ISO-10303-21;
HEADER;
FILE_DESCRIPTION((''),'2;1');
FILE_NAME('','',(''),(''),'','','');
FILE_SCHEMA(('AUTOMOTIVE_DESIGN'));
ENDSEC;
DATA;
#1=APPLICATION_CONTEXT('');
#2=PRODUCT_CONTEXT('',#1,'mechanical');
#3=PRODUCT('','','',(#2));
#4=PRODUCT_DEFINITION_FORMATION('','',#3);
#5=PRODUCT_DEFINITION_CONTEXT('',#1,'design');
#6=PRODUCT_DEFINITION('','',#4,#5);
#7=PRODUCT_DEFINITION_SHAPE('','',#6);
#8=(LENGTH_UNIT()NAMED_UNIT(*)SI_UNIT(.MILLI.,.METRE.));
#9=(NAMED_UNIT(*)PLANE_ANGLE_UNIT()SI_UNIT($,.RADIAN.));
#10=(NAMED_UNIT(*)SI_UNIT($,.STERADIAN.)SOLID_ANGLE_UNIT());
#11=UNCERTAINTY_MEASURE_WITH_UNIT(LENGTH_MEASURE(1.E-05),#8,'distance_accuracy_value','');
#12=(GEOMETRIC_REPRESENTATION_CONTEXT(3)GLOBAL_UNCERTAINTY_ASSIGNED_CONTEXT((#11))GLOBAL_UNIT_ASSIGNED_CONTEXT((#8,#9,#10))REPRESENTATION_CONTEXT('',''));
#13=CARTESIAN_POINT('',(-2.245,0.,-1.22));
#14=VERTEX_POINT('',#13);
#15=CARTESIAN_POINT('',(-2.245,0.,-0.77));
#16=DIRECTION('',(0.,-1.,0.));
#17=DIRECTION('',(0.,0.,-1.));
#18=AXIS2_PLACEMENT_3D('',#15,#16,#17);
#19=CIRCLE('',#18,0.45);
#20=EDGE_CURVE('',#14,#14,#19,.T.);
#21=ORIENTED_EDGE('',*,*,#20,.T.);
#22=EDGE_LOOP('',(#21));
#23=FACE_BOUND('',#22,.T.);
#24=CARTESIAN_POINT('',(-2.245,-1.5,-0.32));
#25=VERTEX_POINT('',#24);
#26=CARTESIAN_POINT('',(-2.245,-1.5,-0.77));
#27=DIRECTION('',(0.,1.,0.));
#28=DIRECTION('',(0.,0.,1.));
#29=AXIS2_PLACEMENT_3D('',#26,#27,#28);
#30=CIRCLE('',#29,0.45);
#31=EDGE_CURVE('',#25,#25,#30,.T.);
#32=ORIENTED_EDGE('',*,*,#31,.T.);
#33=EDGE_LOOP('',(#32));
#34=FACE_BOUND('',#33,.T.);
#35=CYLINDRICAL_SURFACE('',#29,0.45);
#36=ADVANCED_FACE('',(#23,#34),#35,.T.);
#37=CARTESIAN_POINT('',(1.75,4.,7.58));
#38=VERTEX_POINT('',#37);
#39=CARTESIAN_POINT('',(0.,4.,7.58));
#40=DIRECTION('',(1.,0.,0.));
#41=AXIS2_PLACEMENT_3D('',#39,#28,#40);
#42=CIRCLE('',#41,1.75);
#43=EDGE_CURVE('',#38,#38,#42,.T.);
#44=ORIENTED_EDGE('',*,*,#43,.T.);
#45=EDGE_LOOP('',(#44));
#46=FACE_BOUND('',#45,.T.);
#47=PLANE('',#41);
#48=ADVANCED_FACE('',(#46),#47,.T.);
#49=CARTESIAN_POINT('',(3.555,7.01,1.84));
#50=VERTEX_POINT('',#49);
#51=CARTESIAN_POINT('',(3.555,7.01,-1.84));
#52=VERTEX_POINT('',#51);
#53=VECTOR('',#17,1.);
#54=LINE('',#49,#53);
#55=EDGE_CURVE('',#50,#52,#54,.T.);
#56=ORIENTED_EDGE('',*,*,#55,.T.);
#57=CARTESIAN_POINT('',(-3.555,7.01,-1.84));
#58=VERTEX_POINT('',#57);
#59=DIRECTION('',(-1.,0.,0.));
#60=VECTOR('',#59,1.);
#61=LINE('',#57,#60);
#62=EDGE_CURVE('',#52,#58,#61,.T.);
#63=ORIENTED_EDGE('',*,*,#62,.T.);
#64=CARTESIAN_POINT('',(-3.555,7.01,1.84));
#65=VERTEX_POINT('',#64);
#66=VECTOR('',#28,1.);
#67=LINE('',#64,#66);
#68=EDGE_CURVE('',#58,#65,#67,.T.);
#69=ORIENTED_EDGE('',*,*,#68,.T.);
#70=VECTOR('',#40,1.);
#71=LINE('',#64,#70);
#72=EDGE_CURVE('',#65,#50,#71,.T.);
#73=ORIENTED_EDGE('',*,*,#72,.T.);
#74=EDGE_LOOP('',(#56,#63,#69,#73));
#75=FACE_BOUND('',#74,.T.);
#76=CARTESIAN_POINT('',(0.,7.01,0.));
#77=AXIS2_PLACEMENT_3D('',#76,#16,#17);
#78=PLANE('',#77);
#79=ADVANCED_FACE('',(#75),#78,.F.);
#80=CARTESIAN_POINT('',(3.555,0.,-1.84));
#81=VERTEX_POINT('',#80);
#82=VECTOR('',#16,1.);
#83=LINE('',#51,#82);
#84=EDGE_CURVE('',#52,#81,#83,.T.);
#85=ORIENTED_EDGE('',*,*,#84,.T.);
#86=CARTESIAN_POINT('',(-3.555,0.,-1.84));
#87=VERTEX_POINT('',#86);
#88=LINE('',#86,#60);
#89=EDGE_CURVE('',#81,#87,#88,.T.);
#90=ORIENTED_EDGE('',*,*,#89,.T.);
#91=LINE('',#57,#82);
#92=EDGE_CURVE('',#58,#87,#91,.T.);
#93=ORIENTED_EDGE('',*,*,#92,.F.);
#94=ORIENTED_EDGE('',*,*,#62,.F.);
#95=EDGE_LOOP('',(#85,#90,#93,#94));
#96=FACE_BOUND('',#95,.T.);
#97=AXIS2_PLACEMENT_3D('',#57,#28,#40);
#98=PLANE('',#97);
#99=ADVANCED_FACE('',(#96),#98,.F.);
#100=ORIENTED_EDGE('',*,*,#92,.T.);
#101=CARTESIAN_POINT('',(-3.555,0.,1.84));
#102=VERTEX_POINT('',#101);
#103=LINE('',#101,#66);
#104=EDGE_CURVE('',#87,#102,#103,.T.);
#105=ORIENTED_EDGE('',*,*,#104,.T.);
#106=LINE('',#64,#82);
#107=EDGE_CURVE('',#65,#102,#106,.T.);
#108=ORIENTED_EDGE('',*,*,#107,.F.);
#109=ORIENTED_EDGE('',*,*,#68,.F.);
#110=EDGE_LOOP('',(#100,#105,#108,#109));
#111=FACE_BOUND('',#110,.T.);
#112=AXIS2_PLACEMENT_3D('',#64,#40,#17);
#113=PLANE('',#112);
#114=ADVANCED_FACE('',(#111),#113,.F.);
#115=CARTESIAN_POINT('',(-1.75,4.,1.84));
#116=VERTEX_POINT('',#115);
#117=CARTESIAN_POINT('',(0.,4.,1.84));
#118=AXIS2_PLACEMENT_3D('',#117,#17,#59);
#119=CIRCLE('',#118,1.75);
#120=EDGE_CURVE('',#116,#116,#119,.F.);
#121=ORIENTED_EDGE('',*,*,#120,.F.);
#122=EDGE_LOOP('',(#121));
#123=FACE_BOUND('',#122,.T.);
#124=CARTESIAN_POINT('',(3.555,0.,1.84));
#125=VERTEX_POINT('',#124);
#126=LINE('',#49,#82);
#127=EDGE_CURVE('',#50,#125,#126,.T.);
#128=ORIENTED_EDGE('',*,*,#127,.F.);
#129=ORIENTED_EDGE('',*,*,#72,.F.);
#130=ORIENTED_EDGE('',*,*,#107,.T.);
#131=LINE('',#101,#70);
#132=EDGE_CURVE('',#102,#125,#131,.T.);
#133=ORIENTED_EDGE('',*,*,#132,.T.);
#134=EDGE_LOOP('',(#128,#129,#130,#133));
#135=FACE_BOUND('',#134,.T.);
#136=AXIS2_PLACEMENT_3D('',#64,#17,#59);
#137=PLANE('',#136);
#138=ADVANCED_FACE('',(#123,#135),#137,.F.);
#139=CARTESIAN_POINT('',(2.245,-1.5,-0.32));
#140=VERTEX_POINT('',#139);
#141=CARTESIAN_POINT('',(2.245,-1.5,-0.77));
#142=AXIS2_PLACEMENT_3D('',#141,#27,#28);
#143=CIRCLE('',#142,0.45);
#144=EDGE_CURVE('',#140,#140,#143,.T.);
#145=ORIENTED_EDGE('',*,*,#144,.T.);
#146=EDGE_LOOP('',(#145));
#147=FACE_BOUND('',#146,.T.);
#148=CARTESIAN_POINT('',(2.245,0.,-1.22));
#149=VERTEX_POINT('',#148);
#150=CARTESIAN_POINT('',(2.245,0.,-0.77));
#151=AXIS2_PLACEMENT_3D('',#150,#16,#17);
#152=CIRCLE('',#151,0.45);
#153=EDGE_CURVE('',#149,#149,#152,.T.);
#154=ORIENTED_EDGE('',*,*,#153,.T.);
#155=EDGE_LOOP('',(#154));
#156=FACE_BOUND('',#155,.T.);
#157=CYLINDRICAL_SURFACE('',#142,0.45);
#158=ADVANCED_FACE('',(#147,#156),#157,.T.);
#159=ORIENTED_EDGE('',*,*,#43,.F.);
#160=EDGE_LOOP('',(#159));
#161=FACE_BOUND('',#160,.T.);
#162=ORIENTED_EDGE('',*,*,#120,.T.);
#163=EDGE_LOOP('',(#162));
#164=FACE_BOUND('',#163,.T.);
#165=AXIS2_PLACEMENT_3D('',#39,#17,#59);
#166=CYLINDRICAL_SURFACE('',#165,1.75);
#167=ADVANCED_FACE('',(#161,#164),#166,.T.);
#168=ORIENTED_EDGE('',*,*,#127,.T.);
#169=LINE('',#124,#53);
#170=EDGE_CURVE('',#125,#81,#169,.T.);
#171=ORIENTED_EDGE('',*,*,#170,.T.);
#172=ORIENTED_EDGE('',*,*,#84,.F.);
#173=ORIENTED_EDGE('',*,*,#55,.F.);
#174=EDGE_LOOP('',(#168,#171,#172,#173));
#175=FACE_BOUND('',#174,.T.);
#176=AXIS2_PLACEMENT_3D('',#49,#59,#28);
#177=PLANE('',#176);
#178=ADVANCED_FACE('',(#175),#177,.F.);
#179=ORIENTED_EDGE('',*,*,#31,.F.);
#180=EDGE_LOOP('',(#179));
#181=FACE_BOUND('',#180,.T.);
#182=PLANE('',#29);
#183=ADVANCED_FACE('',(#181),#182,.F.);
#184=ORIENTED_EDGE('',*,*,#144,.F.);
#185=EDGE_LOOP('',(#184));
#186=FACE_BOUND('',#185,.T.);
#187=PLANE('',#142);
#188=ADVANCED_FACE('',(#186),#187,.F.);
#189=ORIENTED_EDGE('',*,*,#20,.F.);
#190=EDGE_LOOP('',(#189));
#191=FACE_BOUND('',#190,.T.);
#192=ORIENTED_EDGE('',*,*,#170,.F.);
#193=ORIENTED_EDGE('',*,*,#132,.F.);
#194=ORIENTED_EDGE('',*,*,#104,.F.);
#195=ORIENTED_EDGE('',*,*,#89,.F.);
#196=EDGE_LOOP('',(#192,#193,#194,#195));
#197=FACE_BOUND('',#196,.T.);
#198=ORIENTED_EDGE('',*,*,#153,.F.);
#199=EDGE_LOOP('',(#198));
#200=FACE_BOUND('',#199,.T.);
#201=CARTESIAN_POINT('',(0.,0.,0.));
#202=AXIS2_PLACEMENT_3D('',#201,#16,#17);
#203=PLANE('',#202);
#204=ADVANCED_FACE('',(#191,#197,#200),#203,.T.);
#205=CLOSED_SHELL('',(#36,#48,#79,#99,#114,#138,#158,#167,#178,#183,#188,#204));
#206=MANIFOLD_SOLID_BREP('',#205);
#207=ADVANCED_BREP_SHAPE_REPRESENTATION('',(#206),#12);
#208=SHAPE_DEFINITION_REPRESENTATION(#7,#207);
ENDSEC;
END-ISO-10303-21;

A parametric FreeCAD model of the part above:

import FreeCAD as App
import Part
import Sketcher
from FreeCAD import Vector
Q = App.Units.Quantity


def add_polygon(sketch, points):
    """Adds a closed chain of lines whose ends are joined by coincident constraints."""
    first, n = sketch.GeometryCount, len(points)
    for a, b in zip(points, points[1:] + points[:1]):
        sketch.addGeometry(Part.LineSegment(App.Vector(*a, 0), App.Vector(*b, 0)), False)
    for i in range(n):
        sketch.addConstraint(Sketcher.Constraint("Coincident", first + i, 2, first + (i + 1) % n, 1))

doc = App.newDocument("Part")
body = doc.addObject("PartDesign::Body", "Body")

sketch1 = body.newObject("Sketcher::SketchObject", "Sketch")
sketch1.AttachmentSupport = (doc.getObject("XZ_Plane"), [""])
sketch1.MapMode = "FlatFace"
add_polygon(sketch1, [(-3.6, -1.8), (-3.6, 1.8), (3.6, 1.8), (3.6, -1.8)])
sketch1.addConstraint([
    Sketcher.Constraint("Vertical", 0),
    Sketcher.Constraint("Horizontal", 1),
    Sketcher.Constraint("Vertical", 2),
    Sketcher.Constraint("Horizontal", 3),
    Sketcher.Constraint("Symmetric", 0, 2, 2, 2, -1, 1),
    Sketcher.Constraint("DistanceX", 1, 1, 1, 2, Q("7.11 mm")),
    Sketcher.Constraint("DistanceY", 0, 1, 0, 2, Q("3.68 mm")),
])
pad1 = body.newObject("PartDesign::Pad", "Pad")
pad1.Profile = sketch1
pad1.Length = 7.01
pad1.Reversed = True

sketch2 = body.newObject("Sketcher::SketchObject", "Sketch001")
sketch2.AttachmentSupport = (doc.getObject("XY_Plane"), [""])
sketch2.MapMode = "FlatFace"
sketch2.AttachmentOffset = App.Placement(Vector(0, 0, 1.84), App.Rotation())
sketch2.addGeometry(Part.Circle(Vector(0, 4, 0), Vector(0, 0, 1), 1.8), False)
sketch2.addConstraint([
    Sketcher.Constraint("PointOnObject", 0, 3, -2),
    Sketcher.Constraint("Diameter", 0, Q("3.5 mm")),
    Sketcher.Constraint("DistanceY", -1, 1, 0, 3, Q("4 mm")),
])
pad2 = body.newObject("PartDesign::Pad", "Pad001")
pad2.Profile = sketch2
pad2.Length = 5.74

sketch3 = body.newObject("Sketcher::SketchObject", "Sketch002")
sketch3.AttachmentSupport = (doc.getObject("XZ_Plane"), [""])
sketch3.MapMode = "FlatFace"
sketch3.addGeometry([
    Part.Circle(Vector(-2.25, -0.77, 0), Vector(0, 0, 1), 0.45),
    Part.Circle(Vector(2.25, -0.77, 0), Vector(0, 0, 1), 0.45),
], False)
sketch3.addConstraint([
    Sketcher.Constraint("Equal", 0, 1),
    Sketcher.Constraint("Symmetric", 0, 3, 1, 3, -2),
    Sketcher.Constraint("Diameter", 0, Q("0.9 mm")),
    Sketcher.Constraint("DistanceY", 0, 3, -1, 1, Q("0.77 mm")),
    Sketcher.Constraint("DistanceX", 0, 3, 1, 3, Q("4.49 mm")),
])
pad3 = body.newObject("PartDesign::Pad", "Pad002")
pad3.Profile = sketch3
pad3.Length = 1.5

doc.recompute()
